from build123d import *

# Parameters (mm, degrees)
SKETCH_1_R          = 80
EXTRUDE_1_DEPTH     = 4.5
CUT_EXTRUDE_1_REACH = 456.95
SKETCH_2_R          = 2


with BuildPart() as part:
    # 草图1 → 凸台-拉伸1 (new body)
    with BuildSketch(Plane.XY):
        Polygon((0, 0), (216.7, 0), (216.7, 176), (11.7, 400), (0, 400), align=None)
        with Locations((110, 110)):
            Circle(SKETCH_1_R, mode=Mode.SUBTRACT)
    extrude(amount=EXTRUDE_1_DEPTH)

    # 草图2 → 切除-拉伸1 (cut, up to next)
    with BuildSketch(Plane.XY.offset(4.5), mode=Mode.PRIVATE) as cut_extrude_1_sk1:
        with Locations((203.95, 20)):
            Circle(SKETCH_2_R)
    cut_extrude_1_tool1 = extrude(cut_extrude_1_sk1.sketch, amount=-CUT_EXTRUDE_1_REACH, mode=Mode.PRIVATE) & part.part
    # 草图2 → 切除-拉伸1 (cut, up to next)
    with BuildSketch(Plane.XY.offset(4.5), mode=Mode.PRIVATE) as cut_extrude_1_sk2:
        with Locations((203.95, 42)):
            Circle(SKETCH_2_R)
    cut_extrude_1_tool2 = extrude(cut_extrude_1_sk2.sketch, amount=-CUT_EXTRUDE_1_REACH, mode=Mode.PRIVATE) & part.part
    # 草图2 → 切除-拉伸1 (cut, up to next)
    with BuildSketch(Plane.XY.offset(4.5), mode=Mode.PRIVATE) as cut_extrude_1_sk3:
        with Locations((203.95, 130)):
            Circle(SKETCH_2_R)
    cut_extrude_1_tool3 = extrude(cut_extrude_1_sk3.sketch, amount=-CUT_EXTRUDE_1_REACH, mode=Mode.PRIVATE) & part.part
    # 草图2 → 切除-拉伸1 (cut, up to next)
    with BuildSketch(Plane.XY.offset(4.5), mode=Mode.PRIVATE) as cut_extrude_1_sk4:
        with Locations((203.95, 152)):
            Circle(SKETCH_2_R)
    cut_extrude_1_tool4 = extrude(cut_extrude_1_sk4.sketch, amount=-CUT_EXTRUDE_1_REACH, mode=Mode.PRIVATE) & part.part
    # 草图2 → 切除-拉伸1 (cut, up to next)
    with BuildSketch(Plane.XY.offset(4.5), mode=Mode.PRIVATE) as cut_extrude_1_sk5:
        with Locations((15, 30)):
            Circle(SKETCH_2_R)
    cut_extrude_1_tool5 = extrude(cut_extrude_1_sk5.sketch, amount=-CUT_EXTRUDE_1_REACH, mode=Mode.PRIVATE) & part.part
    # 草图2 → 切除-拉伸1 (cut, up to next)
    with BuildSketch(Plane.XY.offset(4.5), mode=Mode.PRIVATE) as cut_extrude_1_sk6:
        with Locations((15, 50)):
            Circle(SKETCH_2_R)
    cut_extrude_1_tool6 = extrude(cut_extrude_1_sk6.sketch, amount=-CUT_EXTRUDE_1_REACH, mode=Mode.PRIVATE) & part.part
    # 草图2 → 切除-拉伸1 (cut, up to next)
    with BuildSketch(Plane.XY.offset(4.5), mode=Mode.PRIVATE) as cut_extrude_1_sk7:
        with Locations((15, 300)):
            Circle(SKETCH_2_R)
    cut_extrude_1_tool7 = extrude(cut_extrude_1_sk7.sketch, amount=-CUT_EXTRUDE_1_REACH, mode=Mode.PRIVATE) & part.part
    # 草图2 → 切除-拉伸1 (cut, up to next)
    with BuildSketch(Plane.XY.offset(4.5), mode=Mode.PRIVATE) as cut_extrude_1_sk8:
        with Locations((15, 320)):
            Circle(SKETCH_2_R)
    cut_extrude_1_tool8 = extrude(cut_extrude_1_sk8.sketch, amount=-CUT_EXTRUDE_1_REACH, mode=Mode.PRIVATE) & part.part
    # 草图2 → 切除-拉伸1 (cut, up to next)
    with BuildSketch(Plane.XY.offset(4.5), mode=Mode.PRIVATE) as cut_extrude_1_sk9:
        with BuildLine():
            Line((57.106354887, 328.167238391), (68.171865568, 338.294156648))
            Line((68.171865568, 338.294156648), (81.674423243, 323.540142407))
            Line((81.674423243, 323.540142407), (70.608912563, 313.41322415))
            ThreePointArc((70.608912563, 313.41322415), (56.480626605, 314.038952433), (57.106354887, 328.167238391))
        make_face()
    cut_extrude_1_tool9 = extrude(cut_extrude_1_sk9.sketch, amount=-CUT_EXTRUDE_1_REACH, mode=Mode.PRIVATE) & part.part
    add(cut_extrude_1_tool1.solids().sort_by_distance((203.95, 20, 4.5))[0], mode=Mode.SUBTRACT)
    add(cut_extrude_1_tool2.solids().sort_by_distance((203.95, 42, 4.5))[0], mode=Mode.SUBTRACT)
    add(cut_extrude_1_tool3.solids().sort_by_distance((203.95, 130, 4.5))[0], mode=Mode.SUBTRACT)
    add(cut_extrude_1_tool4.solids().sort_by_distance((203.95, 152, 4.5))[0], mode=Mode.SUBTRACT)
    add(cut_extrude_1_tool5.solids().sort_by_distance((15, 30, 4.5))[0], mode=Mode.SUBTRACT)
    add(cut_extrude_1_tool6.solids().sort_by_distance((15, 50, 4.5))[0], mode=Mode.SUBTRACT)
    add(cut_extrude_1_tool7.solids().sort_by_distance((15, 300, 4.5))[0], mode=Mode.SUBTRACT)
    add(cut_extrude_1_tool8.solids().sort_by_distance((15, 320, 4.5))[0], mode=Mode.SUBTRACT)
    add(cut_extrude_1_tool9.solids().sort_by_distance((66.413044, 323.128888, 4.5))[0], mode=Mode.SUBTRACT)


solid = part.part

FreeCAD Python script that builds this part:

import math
import FreeCAD as App
import Part
import Sketcher

V = App.Vector


def add_polygon(sketch, points):
    """Adds a closed chain of lines whose ends are joined by coincident constraints."""
    first, n = sketch.GeometryCount, len(points)
    for a, b in zip(points, points[1:] + points[:1]):
        sketch.addGeometry(Part.LineSegment(App.Vector(*a, 0), App.Vector(*b, 0)), False)
    for i in range(n):
        sketch.addConstraint(Sketcher.Constraint("Coincident", first + i, 2, first + (i + 1) % n, 1))

doc = App.newDocument("Part")
body = doc.addObject("PartDesign::Body", "Body")

# Sketch on XY plane
sketch1 = body.newObject("Sketcher::SketchObject", "Sketch")
sketch1.AttachmentSupport = (doc.getObject("XY_Plane"), [""])
sketch1.MapMode = "FlatFace"
add_polygon(sketch1, [(0, 0), (217, 0), (217, 176), (12, 400), (0, 400)])  # lines 0-4
sketch1.addGeometry(Part.Circle(V(110, 110, 0), V(0, 0, 1), 80), False)  # 5
sketch1.addConstraint([
    Sketcher.Constraint("Horizontal", 0),
    Sketcher.Constraint("Vertical", 1),
    Sketcher.Constraint("Horizontal", 3),
    Sketcher.Constraint("Vertical", 4),
    Sketcher.Constraint("Coincident", 4, 2, -1, 1),
    Sketcher.Constraint("Diameter", 5, 160.0),
    Sketcher.Constraint("DistanceY", 1, 1, 1, 2, 176.0),
    Sketcher.Constraint("DistanceY", 4, 2, 4, 1, 400.0),
    Sketcher.Constraint("DistanceX", 0, 1, 0, 2, 216.7),
    Sketcher.Constraint("DistanceX", 3, 2, 3, 1, 11.7),
    Sketcher.Constraint("DistanceX", -1, 1, 5, 3, 110.0),
    Sketcher.Constraint("DistanceY", -1, 1, 5, 3, 110.0),
])
pad1 = body.newObject("PartDesign::Pad", "Pad")
pad1.Profile = sketch1
pad1.Length = 4.5

# Sketch on XY plane
sketch2 = body.newObject("Sketcher::SketchObject", "Sketch001")
sketch2.AttachmentSupport = (doc.getObject("XY_Plane"), [""])
sketch2.MapMode = "FlatFace"
sketch2.AttachmentOffset = App.Placement(V(0, 0, 4.5), App.Rotation())
sketch2.addGeometry(Part.Circle(V(203.9, 20, 0), V(0, 0, 1), 2), False)
sketch2.addConstraint([
    Sketcher.Constraint("Diameter", 0, 4.0),
    Sketcher.Constraint("DistanceY", -1, 1, 0, 3, 20.0),
    Sketcher.Constraint("DistanceX", -1, 1, 0, 3, 203.95),
])
pocket1 = body.newObject("PartDesign::Pocket", "Pocket")
pocket1.Profile = sketch2
pocket1.Type = "UpToFirst"

# Sketch on XY plane
sketch3 = body.newObject("Sketcher::SketchObject", "Sketch002")
sketch3.AttachmentSupport = (doc.getObject("XY_Plane"), [""])
sketch3.MapMode = "FlatFace"
sketch3.AttachmentOffset = App.Placement(V(0, 0, 4.5), App.Rotation())
sketch3.addGeometry(Part.Circle(V(203.9, 42, 0), V(0, 0, 1), 2), False)
sketch3.addConstraint([
    Sketcher.Constraint("Diameter", 0, 4.0),
    Sketcher.Constraint("DistanceY", -1, 1, 0, 3, 42.0),
    Sketcher.Constraint("DistanceX", -1, 1, 0, 3, 203.95),
])
pocket2 = body.newObject("PartDesign::Pocket", "Pocket001")
pocket2.Profile = sketch3
pocket2.Type = "UpToFirst"

# Sketch on XY plane
sketch4 = body.newObject("Sketcher::SketchObject", "Sketch003")
sketch4.AttachmentSupport = (doc.getObject("XY_Plane"), [""])
sketch4.MapMode = "FlatFace"
sketch4.AttachmentOffset = App.Placement(V(0, 0, 4.5), App.Rotation())
sketch4.addGeometry(Part.Circle(V(203.9, 130, 0), V(0, 0, 1), 2), False)
sketch4.addConstraint([
    Sketcher.Constraint("Diameter", 0, 4.0),
    Sketcher.Constraint("DistanceY", -1, 1, 0, 3, 130.0),
    Sketcher.Constraint("DistanceX", -1, 1, 0, 3, 203.95),
])
pocket3 = body.newObject("PartDesign::Pocket", "Pocket002")
pocket3.Profile = sketch4
pocket3.Type = "UpToFirst"

# Sketch on XY plane
sketch5 = body.newObject("Sketcher::SketchObject", "Sketch004")
sketch5.AttachmentSupport = (doc.getObject("XY_Plane"), [""])
sketch5.MapMode = "FlatFace"
sketch5.AttachmentOffset = App.Placement(V(0, 0, 4.5), App.Rotation())
sketch5.addGeometry(Part.Circle(V(203.9, 152, 0), V(0, 0, 1), 2), False)
sketch5.addConstraint([
    Sketcher.Constraint("Diameter", 0, 4.0),
    Sketcher.Constraint("DistanceY", -1, 1, 0, 3, 152.0),
    Sketcher.Constraint("DistanceX", -1, 1, 0, 3, 203.95),
])
pocket4 = body.newObject("PartDesign::Pocket", "Pocket003")
pocket4.Profile = sketch5
pocket4.Type = "UpToFirst"

# Sketch on XY plane
sketch6 = body.newObject("Sketcher::SketchObject", "Sketch005")
sketch6.AttachmentSupport = (doc.getObject("XY_Plane"), [""])
sketch6.MapMode = "FlatFace"
sketch6.AttachmentOffset = App.Placement(V(0, 0, 4.5), App.Rotation())
sketch6.addGeometry(Part.Circle(V(15, 30, 0), V(0, 0, 1), 2), False)
sketch6.addConstraint([
    Sketcher.Constraint("Diameter", 0, 4.0),
    Sketcher.Constraint("DistanceX", -1, 1, 0, 3, 15.0),
    Sketcher.Constraint("DistanceY", -1, 1, 0, 3, 30.0),
])
pocket5 = body.newObject("PartDesign::Pocket", "Pocket004")
pocket5.Profile = sketch6
pocket5.Type = "UpToFirst"

# Sketch on XY plane
sketch7 = body.newObject("Sketcher::SketchObject", "Sketch006")
sketch7.AttachmentSupport = (doc.getObject("XY_Plane"), [""])
sketch7.MapMode = "FlatFace"
sketch7.AttachmentOffset = App.Placement(V(0, 0, 4.5), App.Rotation())
sketch7.addGeometry(Part.Circle(V(15, 50, 0), V(0, 0, 1), 2), False)
sketch7.addConstraint([
    Sketcher.Constraint("Diameter", 0, 4.0),
    Sketcher.Constraint("DistanceX", -1, 1, 0, 3, 15.0),
    Sketcher.Constraint("DistanceY", -1, 1, 0, 3, 50.0),
])
pocket6 = body.newObject("PartDesign::Pocket", "Pocket005")
pocket6.Profile = sketch7
pocket6.Type = "UpToFirst"

# Sketch on XY plane
sketch8 = body.newObject("Sketcher::SketchObject", "Sketch007")
sketch8.AttachmentSupport = (doc.getObject("XY_Plane"), [""])
sketch8.MapMode = "FlatFace"
sketch8.AttachmentOffset = App.Placement(V(0, 0, 4.5), App.Rotation())
sketch8.addGeometry(Part.Circle(V(15, 300, 0), V(0, 0, 1), 2), False)
sketch8.addConstraint([
    Sketcher.Constraint("Diameter", 0, 4.0),
    Sketcher.Constraint("DistanceX", -1, 1, 0, 3, 15.0),
    Sketcher.Constraint("DistanceY", -1, 1, 0, 3, 300.0),
])
pocket7 = body.newObject("PartDesign::Pocket", "Pocket006")
pocket7.Profile = sketch8
pocket7.Type = "UpToFirst"

# Sketch on XY plane
sketch9 = body.newObject("Sketcher::SketchObject", "Sketch008")
sketch9.AttachmentSupport = (doc.getObject("XY_Plane"), [""])
sketch9.MapMode = "FlatFace"
sketch9.AttachmentOffset = App.Placement(V(0, 0, 4.5), App.Rotation())
sketch9.addGeometry(Part.Circle(V(15, 320, 0), V(0, 0, 1), 2), False)
sketch9.addConstraint([
    Sketcher.Constraint("Diameter", 0, 4.0),
    Sketcher.Constraint("DistanceX", -1, 1, 0, 3, 15.0),
    Sketcher.Constraint("DistanceY", -1, 1, 0, 3, 320.0),
])
pocket8 = body.newObject("PartDesign::Pocket", "Pocket007")
pocket8.Profile = sketch9
pocket8.Type = "UpToFirst"

# Sketch on XY plane
sketch10 = body.newObject("Sketcher::SketchObject", "Sketch009")
sketch10.AttachmentSupport = (doc.getObject("XY_Plane"), [""])
sketch10.MapMode = "FlatFace"
sketch10.AttachmentOffset = App.Placement(V(0, 0, 4.5), App.Rotation())
sketch10.addGeometry([
    Part.LineSegment(V(68, 338, 0), V(57, 328, 0)),
    Part.ArcOfCircle(Part.Circle(V(64, 321, 0), V(0, 0, 1), 10), math.radians(132), math.radians(312)),
    Part.LineSegment(V(71, 313, 0), V(82, 324, 0)),
    Part.LineSegment(V(82, 324, 0), V(68, 338, 0)),
], False)
sketch10.addConstraint([
    Sketcher.Constraint("Tangent", 0, 2, 1, 1),
    Sketcher.Constraint("Tangent", 1, 2, 2, 1),
    Sketcher.Constraint("Coincident", 2, 2, 3, 1),
    Sketcher.Constraint("Coincident", 3, 2, 0, 1),
    Sketcher.Constraint("Parallel", 0, 2),
    Sketcher.Constraint("Perpendicular", 2, 3),
    Sketcher.Constraint("Radius", 1, 10.0),
    Sketcher.Constraint("Distance", 0, 15.0),
    Sketcher.Constraint("DistanceY", -1, 1, 1, 3, 320.790231),
    Sketcher.Constraint("DistanceY", -1, 1, 0, 2, 328.167238),
    Sketcher.Constraint("DistanceX", -1, 1, 1, 3, 63.857634),
])
pocket9 = body.newObject("PartDesign::Pocket", "Pocket008")
pocket9.Profile = sketch10
pocket9.Type = "UpToFirst"

doc.recompute()
